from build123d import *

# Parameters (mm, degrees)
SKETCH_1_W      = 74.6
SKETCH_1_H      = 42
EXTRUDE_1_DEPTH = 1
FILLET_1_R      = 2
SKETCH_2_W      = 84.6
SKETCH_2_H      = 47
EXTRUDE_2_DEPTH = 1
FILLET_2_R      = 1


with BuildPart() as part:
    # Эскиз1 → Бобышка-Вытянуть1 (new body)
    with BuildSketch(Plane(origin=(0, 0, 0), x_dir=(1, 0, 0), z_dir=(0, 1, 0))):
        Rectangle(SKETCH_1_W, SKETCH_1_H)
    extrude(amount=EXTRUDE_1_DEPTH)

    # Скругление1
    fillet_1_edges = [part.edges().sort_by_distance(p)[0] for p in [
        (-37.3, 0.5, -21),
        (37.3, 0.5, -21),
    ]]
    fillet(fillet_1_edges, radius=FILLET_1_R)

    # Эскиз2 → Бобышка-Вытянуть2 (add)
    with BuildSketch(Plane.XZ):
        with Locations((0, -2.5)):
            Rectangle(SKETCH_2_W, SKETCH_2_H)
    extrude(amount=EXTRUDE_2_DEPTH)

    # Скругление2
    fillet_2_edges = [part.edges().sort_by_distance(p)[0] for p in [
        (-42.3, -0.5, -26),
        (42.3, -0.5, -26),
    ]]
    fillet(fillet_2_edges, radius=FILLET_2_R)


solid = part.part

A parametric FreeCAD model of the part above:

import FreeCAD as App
import Part
import Sketcher
from FreeCAD import Vector


def edges_at(feature, points):
    """Names of the edges that pass closest to the given points."""
    edges = feature.Shape.Edges
    near = lambda p: min(range(len(edges)), key=lambda i: edges[i].distToShape(Part.Vertex(*p))[0])
    return sorted({f"Edge{near(p) + 1}" for p in points})

doc = App.newDocument("Part")
body = doc.addObject("PartDesign::Body", "Body")

# Sketch on XZ plane
sketch1 = body.newObject("Sketcher::SketchObject", "Sketch")
sketch1.AttachmentSupport = (doc.getObject("XZ_Plane"), [""])
sketch1.MapMode = "FlatFace"
sketch1.addGeometry([
    Part.LineSegment(Vector(-37.3, -21, 0), Vector(-37.3, 21, 0)),
    Part.LineSegment(Vector(-37.3, 21, 0), Vector(37.3, 21, 0)),
    Part.LineSegment(Vector(37.3, 21, 0), Vector(37.3, -21, 0)),
    Part.LineSegment(Vector(37.3, -21, 0), Vector(-37.3, -21, 0)),
], False)
sketch1.addConstraint([
    Sketcher.Constraint("Coincident", 0, 2, 1, 1),
    Sketcher.Constraint("Coincident", 1, 2, 2, 1),
    Sketcher.Constraint("Coincident", 2, 2, 3, 1),
    Sketcher.Constraint("Coincident", 3, 2, 0, 1),
    Sketcher.Constraint("Vertical", 0),
    Sketcher.Constraint("Horizontal", 1),
    Sketcher.Constraint("Vertical", 2),
    Sketcher.Constraint("Horizontal", 3),
    Sketcher.Constraint("Symmetric", 0, 2, 2, 2, -1, 1),
    Sketcher.Constraint("DistanceY", 0, 1, 0, 2, 42.0),
    Sketcher.Constraint("DistanceX", 1, 1, 1, 2, 74.6),
])
pad1 = body.newObject("PartDesign::Pad", "Pad")
pad1.Profile = sketch1
pad1.Length = 1
pad1.Reversed = True
doc.recompute()

fillet = body.newObject("PartDesign::Fillet", "Fillet")
fillet.Base = (pad1, edges_at(pad1, [(-37.3, 0.5, -21), (37.3, 0.5, -21)]))
fillet.Radius = 2

# Sketch on XZ plane
sketch2 = body.newObject("Sketcher::SketchObject", "Sketch001")
sketch2.AttachmentSupport = (doc.getObject("XZ_Plane"), [""])
sketch2.MapMode = "FlatFace"
sketch2.addGeometry([
    Part.LineSegment(Vector(-42.3, 21, 0), Vector(-42.3, -26, 0)),
    Part.LineSegment(Vector(-42.3, -26, 0), Vector(42.3, -26, 0)),
    Part.LineSegment(Vector(42.3, -26, 0), Vector(42.3, 21, 0)),
    Part.LineSegment(Vector(42.3, 21, 0), Vector(-42.3, 21, 0)),
], False)
sketch2.addConstraint([
    Sketcher.Constraint("Coincident", 0, 2, 1, 1),
    Sketcher.Constraint("Coincident", 1, 2, 2, 1),
    Sketcher.Constraint("Coincident", 2, 2, 3, 1),
    Sketcher.Constraint("Coincident", 3, 2, 0, 1),
    Sketcher.Constraint("Vertical", 0),
    Sketcher.Constraint("Horizontal", 1),
    Sketcher.Constraint("Vertical", 2),
    Sketcher.Constraint("Horizontal", 3),
    Sketcher.Constraint("DistanceY", 0, 2, 0, 1, 47.0),
    Sketcher.Constraint("DistanceX", 1, 1, 1, 2, 84.6),
    Sketcher.Constraint("DistanceY", 0, 2, -1, 1, 26.0),
    Sketcher.Constraint("DistanceX", 0, 2, -1, 1, 42.3),
])
pad2 = body.newObject("PartDesign::Pad", "Pad001")
pad2.Profile = sketch2
pad2.Length = 1
doc.recompute()

fillet2 = body.newObject("PartDesign::Fillet", "Fillet001")
fillet2.Base = (pad2, edges_at(pad2, [(-42.3, -0.5, -26), (42.3, -0.5, -26)]))
fillet2.Radius = 1

doc.recompute()
